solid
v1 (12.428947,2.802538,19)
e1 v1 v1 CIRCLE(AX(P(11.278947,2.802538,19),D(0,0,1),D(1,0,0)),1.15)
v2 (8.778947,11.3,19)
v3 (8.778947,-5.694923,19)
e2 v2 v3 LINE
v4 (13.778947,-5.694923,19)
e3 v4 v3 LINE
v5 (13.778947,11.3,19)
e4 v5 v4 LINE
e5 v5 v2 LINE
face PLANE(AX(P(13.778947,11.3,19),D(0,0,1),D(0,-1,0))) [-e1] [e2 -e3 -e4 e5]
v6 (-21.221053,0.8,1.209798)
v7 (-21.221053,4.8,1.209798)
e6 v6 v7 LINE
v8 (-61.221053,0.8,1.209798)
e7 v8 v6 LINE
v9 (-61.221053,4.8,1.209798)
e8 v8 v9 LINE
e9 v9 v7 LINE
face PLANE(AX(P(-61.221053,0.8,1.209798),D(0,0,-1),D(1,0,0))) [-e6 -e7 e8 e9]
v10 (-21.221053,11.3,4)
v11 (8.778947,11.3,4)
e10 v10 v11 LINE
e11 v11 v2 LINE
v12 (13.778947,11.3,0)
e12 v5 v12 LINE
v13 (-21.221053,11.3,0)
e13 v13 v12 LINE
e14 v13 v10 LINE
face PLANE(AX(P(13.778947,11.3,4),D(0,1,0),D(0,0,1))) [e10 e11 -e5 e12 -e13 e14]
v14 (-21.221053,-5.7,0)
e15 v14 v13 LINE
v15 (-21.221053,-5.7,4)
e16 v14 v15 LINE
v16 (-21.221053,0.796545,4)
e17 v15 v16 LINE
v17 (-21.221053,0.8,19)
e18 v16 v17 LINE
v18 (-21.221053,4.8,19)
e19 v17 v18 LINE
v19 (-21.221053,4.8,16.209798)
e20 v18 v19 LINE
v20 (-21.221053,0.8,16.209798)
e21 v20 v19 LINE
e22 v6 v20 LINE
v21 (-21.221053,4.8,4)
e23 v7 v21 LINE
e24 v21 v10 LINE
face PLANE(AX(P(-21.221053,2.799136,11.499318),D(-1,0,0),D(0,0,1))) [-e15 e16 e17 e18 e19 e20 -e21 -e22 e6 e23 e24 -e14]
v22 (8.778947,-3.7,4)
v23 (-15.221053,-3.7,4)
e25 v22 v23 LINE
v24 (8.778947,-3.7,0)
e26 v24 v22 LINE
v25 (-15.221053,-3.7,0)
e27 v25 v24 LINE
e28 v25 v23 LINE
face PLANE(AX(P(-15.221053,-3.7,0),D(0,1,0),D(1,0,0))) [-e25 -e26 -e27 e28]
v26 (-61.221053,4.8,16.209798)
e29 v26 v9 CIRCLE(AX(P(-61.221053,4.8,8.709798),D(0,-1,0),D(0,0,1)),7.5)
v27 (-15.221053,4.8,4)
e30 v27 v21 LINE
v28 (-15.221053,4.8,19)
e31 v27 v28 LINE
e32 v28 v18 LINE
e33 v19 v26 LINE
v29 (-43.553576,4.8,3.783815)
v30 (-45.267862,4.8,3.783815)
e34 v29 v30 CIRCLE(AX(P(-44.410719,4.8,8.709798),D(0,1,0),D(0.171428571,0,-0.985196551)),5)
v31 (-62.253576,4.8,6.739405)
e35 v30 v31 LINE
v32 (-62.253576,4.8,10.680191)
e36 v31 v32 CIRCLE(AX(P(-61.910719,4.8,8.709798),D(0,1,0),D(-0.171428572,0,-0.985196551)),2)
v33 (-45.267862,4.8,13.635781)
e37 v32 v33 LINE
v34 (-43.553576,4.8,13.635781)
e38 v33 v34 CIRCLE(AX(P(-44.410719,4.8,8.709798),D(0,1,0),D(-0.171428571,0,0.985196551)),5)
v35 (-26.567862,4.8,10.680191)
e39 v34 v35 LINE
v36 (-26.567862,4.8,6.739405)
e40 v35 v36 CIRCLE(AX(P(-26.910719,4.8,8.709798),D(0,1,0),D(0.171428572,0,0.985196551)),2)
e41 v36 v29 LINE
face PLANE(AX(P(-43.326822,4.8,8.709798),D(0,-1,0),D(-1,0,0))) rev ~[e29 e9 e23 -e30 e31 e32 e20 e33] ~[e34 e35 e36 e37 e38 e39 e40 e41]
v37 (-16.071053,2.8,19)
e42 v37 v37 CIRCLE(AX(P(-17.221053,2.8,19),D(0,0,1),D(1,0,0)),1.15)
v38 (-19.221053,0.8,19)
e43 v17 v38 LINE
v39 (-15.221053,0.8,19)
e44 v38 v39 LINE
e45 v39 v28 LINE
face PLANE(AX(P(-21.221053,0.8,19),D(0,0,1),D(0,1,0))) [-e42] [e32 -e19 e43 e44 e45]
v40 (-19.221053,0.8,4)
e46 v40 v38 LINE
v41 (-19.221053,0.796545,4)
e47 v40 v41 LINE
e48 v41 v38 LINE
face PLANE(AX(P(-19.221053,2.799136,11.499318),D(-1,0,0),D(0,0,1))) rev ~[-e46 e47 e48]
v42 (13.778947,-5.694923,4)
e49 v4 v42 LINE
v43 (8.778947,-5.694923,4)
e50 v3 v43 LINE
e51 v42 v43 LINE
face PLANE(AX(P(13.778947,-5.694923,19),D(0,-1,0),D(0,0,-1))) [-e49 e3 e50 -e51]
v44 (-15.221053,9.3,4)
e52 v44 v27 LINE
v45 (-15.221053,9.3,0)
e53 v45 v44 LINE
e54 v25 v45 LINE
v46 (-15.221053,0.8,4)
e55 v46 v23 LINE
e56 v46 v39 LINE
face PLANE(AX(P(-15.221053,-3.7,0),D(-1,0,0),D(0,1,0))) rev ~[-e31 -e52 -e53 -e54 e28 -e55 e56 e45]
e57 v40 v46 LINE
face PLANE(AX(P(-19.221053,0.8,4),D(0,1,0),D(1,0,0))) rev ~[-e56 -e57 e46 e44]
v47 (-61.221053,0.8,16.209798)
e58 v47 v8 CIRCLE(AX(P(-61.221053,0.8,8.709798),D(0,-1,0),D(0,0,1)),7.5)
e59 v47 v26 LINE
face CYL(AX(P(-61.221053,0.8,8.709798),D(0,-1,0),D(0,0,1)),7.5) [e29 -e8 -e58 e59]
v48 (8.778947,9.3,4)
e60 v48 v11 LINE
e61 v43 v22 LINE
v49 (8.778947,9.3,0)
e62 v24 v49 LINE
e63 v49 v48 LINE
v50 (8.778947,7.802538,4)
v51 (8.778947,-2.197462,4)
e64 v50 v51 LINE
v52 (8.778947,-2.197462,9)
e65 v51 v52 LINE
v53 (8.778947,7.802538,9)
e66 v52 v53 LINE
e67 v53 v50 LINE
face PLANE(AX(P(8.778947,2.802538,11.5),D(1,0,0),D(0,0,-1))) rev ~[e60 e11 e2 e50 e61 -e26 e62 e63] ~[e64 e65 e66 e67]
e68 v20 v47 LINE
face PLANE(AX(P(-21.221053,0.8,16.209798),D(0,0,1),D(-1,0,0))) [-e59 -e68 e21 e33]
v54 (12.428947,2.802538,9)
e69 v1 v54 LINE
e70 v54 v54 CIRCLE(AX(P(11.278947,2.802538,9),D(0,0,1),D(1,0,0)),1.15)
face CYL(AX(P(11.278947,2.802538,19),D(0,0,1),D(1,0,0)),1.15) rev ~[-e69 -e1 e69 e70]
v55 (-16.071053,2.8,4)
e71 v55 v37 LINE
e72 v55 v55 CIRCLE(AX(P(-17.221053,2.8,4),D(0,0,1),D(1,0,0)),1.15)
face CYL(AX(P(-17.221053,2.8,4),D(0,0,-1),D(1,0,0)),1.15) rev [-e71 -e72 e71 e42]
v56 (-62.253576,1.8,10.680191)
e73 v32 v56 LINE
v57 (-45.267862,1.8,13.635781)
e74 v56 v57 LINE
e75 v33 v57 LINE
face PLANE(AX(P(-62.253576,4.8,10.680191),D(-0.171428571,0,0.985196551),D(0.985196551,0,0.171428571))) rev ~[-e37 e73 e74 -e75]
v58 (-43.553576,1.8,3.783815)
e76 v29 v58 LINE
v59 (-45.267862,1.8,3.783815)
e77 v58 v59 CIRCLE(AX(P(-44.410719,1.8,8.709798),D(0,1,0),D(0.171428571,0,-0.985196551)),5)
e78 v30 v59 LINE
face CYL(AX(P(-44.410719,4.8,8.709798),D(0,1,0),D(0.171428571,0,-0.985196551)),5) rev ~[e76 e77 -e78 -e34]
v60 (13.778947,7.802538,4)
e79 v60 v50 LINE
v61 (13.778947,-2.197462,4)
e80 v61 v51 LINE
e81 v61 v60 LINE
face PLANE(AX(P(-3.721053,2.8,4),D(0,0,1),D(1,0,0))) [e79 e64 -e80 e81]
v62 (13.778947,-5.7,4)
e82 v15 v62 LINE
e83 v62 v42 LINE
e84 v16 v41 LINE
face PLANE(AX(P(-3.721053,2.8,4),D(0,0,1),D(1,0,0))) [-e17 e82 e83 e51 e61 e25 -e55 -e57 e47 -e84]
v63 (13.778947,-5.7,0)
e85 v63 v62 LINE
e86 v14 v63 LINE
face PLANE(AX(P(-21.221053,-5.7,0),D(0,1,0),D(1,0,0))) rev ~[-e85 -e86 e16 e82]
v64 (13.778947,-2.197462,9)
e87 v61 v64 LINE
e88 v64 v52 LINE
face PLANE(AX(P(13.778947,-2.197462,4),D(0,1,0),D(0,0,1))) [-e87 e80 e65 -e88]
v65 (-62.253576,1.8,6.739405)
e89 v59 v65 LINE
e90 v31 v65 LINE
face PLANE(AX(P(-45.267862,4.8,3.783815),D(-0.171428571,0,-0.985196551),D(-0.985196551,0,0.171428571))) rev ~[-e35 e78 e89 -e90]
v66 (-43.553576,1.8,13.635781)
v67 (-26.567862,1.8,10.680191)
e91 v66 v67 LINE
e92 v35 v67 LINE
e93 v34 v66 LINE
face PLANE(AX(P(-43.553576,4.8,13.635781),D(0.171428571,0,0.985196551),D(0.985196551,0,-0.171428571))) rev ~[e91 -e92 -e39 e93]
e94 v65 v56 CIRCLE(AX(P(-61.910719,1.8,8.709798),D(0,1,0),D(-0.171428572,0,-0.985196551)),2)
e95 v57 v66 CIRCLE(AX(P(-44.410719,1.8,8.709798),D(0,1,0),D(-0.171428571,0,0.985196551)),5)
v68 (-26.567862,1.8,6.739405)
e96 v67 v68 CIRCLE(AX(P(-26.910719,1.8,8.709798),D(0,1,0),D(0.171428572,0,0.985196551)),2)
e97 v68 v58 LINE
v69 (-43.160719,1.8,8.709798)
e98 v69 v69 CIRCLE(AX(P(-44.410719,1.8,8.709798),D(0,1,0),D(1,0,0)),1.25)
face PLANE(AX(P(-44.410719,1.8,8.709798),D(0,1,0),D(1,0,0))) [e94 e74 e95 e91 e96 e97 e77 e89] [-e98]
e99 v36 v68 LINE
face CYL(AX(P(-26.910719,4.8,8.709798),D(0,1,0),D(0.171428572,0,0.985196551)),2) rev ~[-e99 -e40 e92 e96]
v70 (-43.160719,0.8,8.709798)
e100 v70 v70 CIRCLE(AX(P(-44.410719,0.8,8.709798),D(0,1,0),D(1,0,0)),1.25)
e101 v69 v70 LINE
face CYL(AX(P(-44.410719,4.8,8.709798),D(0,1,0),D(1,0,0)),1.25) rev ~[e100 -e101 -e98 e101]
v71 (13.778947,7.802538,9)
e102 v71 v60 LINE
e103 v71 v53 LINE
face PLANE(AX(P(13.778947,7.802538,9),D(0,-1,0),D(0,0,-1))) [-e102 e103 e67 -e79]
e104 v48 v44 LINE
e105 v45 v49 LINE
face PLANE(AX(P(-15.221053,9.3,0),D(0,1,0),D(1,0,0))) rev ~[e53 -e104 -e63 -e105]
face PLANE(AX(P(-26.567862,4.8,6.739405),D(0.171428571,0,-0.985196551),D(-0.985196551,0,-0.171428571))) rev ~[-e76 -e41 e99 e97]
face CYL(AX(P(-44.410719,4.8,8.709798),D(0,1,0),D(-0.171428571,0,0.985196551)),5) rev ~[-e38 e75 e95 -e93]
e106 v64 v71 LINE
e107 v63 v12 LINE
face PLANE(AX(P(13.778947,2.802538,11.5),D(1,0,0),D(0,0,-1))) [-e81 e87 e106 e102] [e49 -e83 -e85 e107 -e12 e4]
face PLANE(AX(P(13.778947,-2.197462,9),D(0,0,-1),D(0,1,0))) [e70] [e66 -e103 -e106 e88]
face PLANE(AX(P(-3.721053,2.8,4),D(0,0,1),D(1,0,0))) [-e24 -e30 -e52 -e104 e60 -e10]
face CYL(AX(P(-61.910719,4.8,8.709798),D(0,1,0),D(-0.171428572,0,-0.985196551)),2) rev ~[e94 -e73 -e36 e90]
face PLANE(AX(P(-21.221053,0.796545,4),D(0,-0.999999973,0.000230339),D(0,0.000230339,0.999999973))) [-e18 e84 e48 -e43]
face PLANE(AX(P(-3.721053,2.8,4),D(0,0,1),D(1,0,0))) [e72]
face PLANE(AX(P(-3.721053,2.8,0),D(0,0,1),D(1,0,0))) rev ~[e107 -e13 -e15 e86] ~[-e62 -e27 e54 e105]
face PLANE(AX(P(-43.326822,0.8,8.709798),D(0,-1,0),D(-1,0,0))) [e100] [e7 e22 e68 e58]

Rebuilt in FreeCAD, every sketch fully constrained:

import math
import FreeCAD as App
import Part
import Sketcher

doc = App.newDocument("Part")
body = doc.addObject("PartDesign::Body", "Body")

sketch1 = doc.addObject("Sketcher::SketchObject", "Sketch")
body.addObject(sketch1)
sketch1.AttachmentSupport = (doc.XY_Plane, [""])
sketch1.MapMode = "FlatFace"
sketch1.addGeometry([
    Part.LineSegment(App.Vector(-21, 11, 0), App.Vector(-21, -6, 0)),
    Part.LineSegment(App.Vector(-21, -6, 0), App.Vector(14, -6, 0)),
    Part.LineSegment(App.Vector(14, -6, 0), App.Vector(14, 11, 0)),
    Part.LineSegment(App.Vector(14, 11, 0), App.Vector(-21, 11, 0)),
], False)
sketch1.addConstraint([
    Sketcher.Constraint("Coincident", 0, 2, 1, 1),
    Sketcher.Constraint("Coincident", 1, 2, 2, 1),
    Sketcher.Constraint("Coincident", 2, 2, 3, 1),
    Sketcher.Constraint("Coincident", 3, 2, 0, 1),
    Sketcher.Constraint("Vertical", 0),
    Sketcher.Constraint("Horizontal", 1),
    Sketcher.Constraint("Vertical", 2),
    Sketcher.Constraint("Horizontal", 3),
    Sketcher.Constraint("DistanceX", 1, 1, 1, 2, 35.0),
    Sketcher.Constraint("DistanceY", 0, 2, 0, 1, 17.0),
    Sketcher.Constraint("DistanceY", 0, 2, -1, 1, 5.7),
    Sketcher.Constraint("DistanceX", 0, 2, -1, 1, 21.221053),
])
pad1 = doc.addObject("PartDesign::Pad", "Pad")
body.addObject(pad1)
pad1.Profile = sketch1
pad1.Length = 4

sketch2 = doc.addObject("Sketcher::SketchObject", "Sketch001")
body.addObject(sketch2)
sketch2.AttachmentSupport = (doc.XY_Plane, [""])
sketch2.MapMode = "FlatFace"
sketch2.addGeometry([
    Part.LineSegment(App.Vector(-15, 9, 0), App.Vector(-15, -4, 0)),
    Part.LineSegment(App.Vector(-15, -4, 0), App.Vector(9, -4, 0)),
    Part.LineSegment(App.Vector(9, -4, 0), App.Vector(9, 9, 0)),
    Part.LineSegment(App.Vector(9, 9, 0), App.Vector(-15, 9, 0)),
], False)
sketch2.addConstraint([
    Sketcher.Constraint("Coincident", 0, 2, 1, 1),
    Sketcher.Constraint("Coincident", 1, 2, 2, 1),
    Sketcher.Constraint("Coincident", 2, 2, 3, 1),
    Sketcher.Constraint("Coincident", 3, 2, 0, 1),
    Sketcher.Constraint("Vertical", 0),
    Sketcher.Constraint("Horizontal", 1),
    Sketcher.Constraint("Vertical", 2),
    Sketcher.Constraint("Horizontal", 3),
    Sketcher.Constraint("DistanceX", 1, 1, 1, 2, 24.0),
    Sketcher.Constraint("DistanceY", 0, 2, 0, 1, 13.0),
    Sketcher.Constraint("DistanceY", 0, 2, -1, 1, 3.7),
    Sketcher.Constraint("DistanceX", 0, 2, -1, 1, 15.221053),
])
pocket1 = doc.addObject("PartDesign::Pocket", "Pocket")
body.addObject(pocket1)
pocket1.Profile = sketch2
pocket1.Length = 6
pocket1.Reversed = True

sketch3 = doc.addObject("Sketcher::SketchObject", "Sketch002")
body.addObject(sketch3)
sketch3.AttachmentSupport = (doc.YZ_Plane, [""])
sketch3.MapMode = "FlatFace"
sketch3.AttachmentOffset = App.Placement(App.Vector(0, 0, 13.778947), App.Rotation())
sketch3.addGeometry([
    Part.LineSegment(App.Vector(7.8, 4, 0), App.Vector(11.3, 4, 0)),
    Part.LineSegment(App.Vector(11.3, 4, 0), App.Vector(11.3, 19, 0)),
    Part.LineSegment(App.Vector(11.3, 19, 0), App.Vector(-5.7, 19, 0)),
    Part.LineSegment(App.Vector(-5.7, 19, 0), App.Vector(-5.7, 4, 0)),
    Part.LineSegment(App.Vector(-5.7, 4, 0), App.Vector(-2.2, 4, 0)),
    Part.LineSegment(App.Vector(-2.2, 4, 0), App.Vector(-2.2, 9, 0)),
    Part.LineSegment(App.Vector(-2.2, 9, 0), App.Vector(7.8, 9, 0)),
    Part.LineSegment(App.Vector(7.8, 9, 0), App.Vector(7.8, 4, 0)),
], False)
sketch3.addConstraint([
    Sketcher.Constraint("Coincident", 0, 2, 1, 1),
    Sketcher.Constraint("Coincident", 1, 2, 2, 1),
    Sketcher.Constraint("Coincident", 2, 2, 3, 1),
    Sketcher.Constraint("Coincident", 3, 2, 4, 1),
    Sketcher.Constraint("Coincident", 4, 2, 5, 1),
    Sketcher.Constraint("Coincident", 5, 2, 6, 1),
    Sketcher.Constraint("Coincident", 6, 2, 7, 1),
    Sketcher.Constraint("Coincident", 7, 2, 0, 1),
    Sketcher.Constraint("Horizontal", 0),
    Sketcher.Constraint("Vertical", 1),
    Sketcher.Constraint("Horizontal", 2),
    Sketcher.Constraint("Vertical", 3),
    Sketcher.Constraint("Horizontal", 4),
    Sketcher.Constraint("Vertical", 5),
    Sketcher.Constraint("Horizontal", 6),
    Sketcher.Constraint("Vertical", 7),
    Sketcher.Constraint("Horizontal", 0, 2, 3, 2),
    Sketcher.Constraint("Equal", 0, 4),
    Sketcher.Constraint("DistanceX", 6, 1, 6, 2, 10.0),
    Sketcher.Constraint("DistanceY", 1, 1, 1, 2, 15.0),
    Sketcher.Constraint("DistanceY", 5, 1, 5, 2, 5.0),
    Sketcher.Constraint("DistanceY", -1, 1, 0, 2, 4.0),
    Sketcher.Constraint("DistanceX", -1, 1, 0, 2, 11.3),
    Sketcher.Constraint("DistanceX", 0, 1, 0, 2, 3.497462),
])
pad2 = doc.addObject("PartDesign::Pad", "Pad001")
body.addObject(pad2)
pad2.Profile = sketch3
pad2.Length = 5
pad2.Reversed = True

sketch4 = doc.addObject("Sketcher::SketchObject", "Sketch003")
body.addObject(sketch4)
sketch4.AttachmentSupport = (doc.XY_Plane, [""])
sketch4.MapMode = "FlatFace"
sketch4.AttachmentOffset = App.Placement(App.Vector(0, 0, 4), App.Rotation())
sketch4.addGeometry([
    Part.LineSegment(App.Vector(-19.2, 4.8, 0), App.Vector(-19.2, 0.8, 0)),
    Part.LineSegment(App.Vector(-19.2, 0.8, 0), App.Vector(-15.2, 0.8, 0)),
    Part.LineSegment(App.Vector(-15.2, 0.8, 0), App.Vector(-15.2, 4.8, 0)),
    Part.LineSegment(App.Vector(-15.2, 4.8, 0), App.Vector(-19.2, 4.8, 0)),
    Part.Circle(App.Vector(-17.2, 2.8, 0), App.Vector(0, 0, 1), 1.1),
], False)
sketch4.addConstraint([
    Sketcher.Constraint("Coincident", 0, 2, 1, 1),
    Sketcher.Constraint("Coincident", 1, 2, 2, 1),
    Sketcher.Constraint("Coincident", 2, 2, 3, 1),
    Sketcher.Constraint("Coincident", 3, 2, 0, 1),
    Sketcher.Constraint("Vertical", 0),
    Sketcher.Constraint("Horizontal", 1),
    Sketcher.Constraint("Vertical", 2),
    Sketcher.Constraint("Horizontal", 3),
    Sketcher.Constraint("Equal", 3, 0),
    Sketcher.Constraint("Diameter", 4, 2.3),
    Sketcher.Constraint("DistanceX", 1, 1, 1, 2, 4.0),
    Sketcher.Constraint("DistanceX", 0, 2, 4, 3, 2.0),
    Sketcher.Constraint("DistanceY", 0, 2, 4, 3, 2.0),
    Sketcher.Constraint("DistanceY", -1, 1, 4, 3, 2.8),
    Sketcher.Constraint("DistanceX", 4, 3, -1, 1, 17.221053),
])
pad3 = doc.addObject("PartDesign::Pad", "Pad002")
body.addObject(pad3)
pad3.Profile = sketch4
pad3.Length = 15

sketch5 = doc.addObject("Sketcher::SketchObject", "Sketch004")
body.addObject(sketch5)
sketch5.AttachmentSupport = (doc.XY_Plane, [""])
sketch5.MapMode = "FlatFace"
sketch5.AttachmentOffset = App.Placement(App.Vector(0, 0, 19), App.Rotation())
sketch5.addGeometry(Part.Circle(App.Vector(11.3, 2.8, 0), App.Vector(0, 0, 1), 1.1), False)
sketch5.addConstraint([
    Sketcher.Constraint("Diameter", 0, 2.3),
    Sketcher.Constraint("DistanceY", -1, 1, 0, 3, 2.802538),
    Sketcher.Constraint("DistanceX", -1, 1, 0, 3, 11.278947),
])
pocket2 = doc.addObject("PartDesign::Pocket", "Pocket001")
body.addObject(pocket2)
pocket2.Profile = sketch5
pocket2.Length = 15

sketch6 = doc.addObject("Sketcher::SketchObject", "Sketch005")
body.addObject(sketch6)
sketch6.AttachmentSupport = (doc.YZ_Plane, [""])
sketch6.MapMode = "FlatFace"
sketch6.AttachmentOffset = App.Placement(App.Vector(0, 0, -21.221053), App.Rotation())
sketch6.addGeometry([
    Part.LineSegment(App.Vector(4.8, 4, 0), App.Vector(0.8, 4, 0)),
    Part.LineSegment(App.Vector(0.8, 4, 0), App.Vector(0.8, 19, 0)),
    Part.LineSegment(App.Vector(0.8, 19, 0), App.Vector(4.8, 19, 0)),
    Part.LineSegment(App.Vector(4.8, 19, 0), App.Vector(4.8, 4, 0)),
], False)
sketch6.addConstraint([
    Sketcher.Constraint("Coincident", 0, 2, 1, 1),
    Sketcher.Constraint("Coincident", 1, 2, 2, 1),
    Sketcher.Constraint("Coincident", 2, 2, 3, 1),
    Sketcher.Constraint("Coincident", 3, 2, 0, 1),
    Sketcher.Constraint("Horizontal", 0),
    Sketcher.Constraint("Horizontal", 2),
    Sketcher.Constraint("Vertical", 3),
    Sketcher.Constraint("DistanceX", 2, 1, 2, 2, 4.0),
    Sketcher.Constraint("DistanceY", 3, 2, 3, 1, 15.0),
    Sketcher.Constraint("DistanceY", -1, 1, 0, 2, 4.0),
    Sketcher.Constraint("DistanceX", -1, 1, 1, 2, 0.8),
    Sketcher.Constraint("DistanceX", 0, 2, 0, 1, 4.003455),
])
pad4 = doc.addObject("PartDesign::Pad", "Pad003")
body.addObject(pad4)
pad4.Profile = sketch6
pad4.Length = 2

sketch7 = doc.addObject("Sketcher::SketchObject", "Sketch006")
body.addObject(sketch7)
sketch7.AttachmentSupport = (doc.XZ_Plane, [""])
sketch7.MapMode = "FlatFace"
sketch7.AttachmentOffset = App.Placement(App.Vector(0, 0, -0.8), App.Rotation())
sketch7.addGeometry([
    Part.LineSegment(App.Vector(-21, 1, 0), App.Vector(-21, 16, 0)),
    Part.LineSegment(App.Vector(-21, 16, 0), App.Vector(-61, 16, 0)),
    Part.ArcOfCircle(Part.Circle(App.Vector(-61, 9, 0), App.Vector(0, 0, 1), 8), math.radians(90), math.radians(270)),
    Part.LineSegment(App.Vector(-61, 1, 0), App.Vector(-21, 1, 0)),
], False)
sketch7.addConstraint([
    Sketcher.Constraint("Coincident", 0, 2, 1, 1),
    Sketcher.Constraint("Tangent", 1, 2, 2, 1),
    Sketcher.Constraint("Tangent", 2, 2, 3, 1),
    Sketcher.Constraint("Coincident", 3, 2, 0, 1),
    Sketcher.Constraint("Vertical", 0),
    Sketcher.Constraint("Horizontal", 1),
    Sketcher.Constraint("Horizontal", 3),
    Sketcher.Constraint("Radius", 2, 7.5),
    Sketcher.Constraint("DistanceX", 1, 2, 1, 1, 40.0),
    Sketcher.Constraint("DistanceX", 2, 3, -1, 1, 61.221053),
    Sketcher.Constraint("DistanceY", -1, 1, 2, 3, 8.709798),
])
pad5 = doc.addObject("PartDesign::Pad", "Pad004")
body.addObject(pad5)
pad5.Profile = sketch7
pad5.Length = 4
pad5.Reversed = True

sketch8 = doc.addObject("Sketcher::SketchObject", "Sketch007")
body.addObject(sketch8)
sketch8.AttachmentSupport = (doc.XZ_Plane, [""])
sketch8.MapMode = "FlatFace"
sketch8.AttachmentOffset = App.Placement(App.Vector(0, 0, -4.8), App.Rotation())
sketch8.addGeometry([
    Part.LineSegment(App.Vector(-45.3, 3.8, 0), App.Vector(-62.3, 6.7, 0)),
    Part.ArcOfCircle(Part.Circle(App.Vector(-61.9, 8.7, 0), App.Vector(0, 0, 1), 2), math.radians(100), math.radians(260)),
    Part.LineSegment(App.Vector(-62.3, 10.7, 0), App.Vector(-45.3, 13.6, 0)),
    Part.ArcOfCircle(Part.Circle(App.Vector(-44.4, 8.7, 0), App.Vector(0, 0, 1), 5), math.radians(80.13), math.radians(99.87)),
    Part.LineSegment(App.Vector(-43.6, 13.6, 0), App.Vector(-26.6, 10.7, 0)),
    Part.ArcOfCircle(Part.Circle(App.Vector(-26.9, 8.7, 0), App.Vector(0, 0, 1), 2), math.radians(-80), math.radians(80)),
    Part.LineSegment(App.Vector(-26.6, 6.7, 0), App.Vector(-43.6, 3.8, 0)),
    Part.ArcOfCircle(Part.Circle(App.Vector(-44.4, 8.7, 0), App.Vector(0, 0, 1), 5), math.radians(-99.87), math.radians(-80.13)),
], False)
sketch8.addConstraint([
    Sketcher.Constraint("Tangent", 0, 2, 1, 2),
    Sketcher.Constraint("Tangent", 1, 1, 2, 1),
    Sketcher.Constraint("Tangent", 2, 2, 3, 2),
    Sketcher.Constraint("Tangent", 3, 1, 4, 1),
    Sketcher.Constraint("Tangent", 4, 2, 5, 2),
    Sketcher.Constraint("Tangent", 5, 1, 6, 1),
    Sketcher.Constraint("Tangent", 6, 2, 7, 2),
    Sketcher.Constraint("Tangent", 7, 1, 0, 1),
    Sketcher.Constraint("Coincident", 7, 3, 3, 3),
    Sketcher.Constraint("Equal", 1, 5),
    Sketcher.Constraint("Equal", 3, 7),
    Sketcher.Constraint("Parallel", 0, 4),
    Sketcher.Constraint("Parallel", 2, 6),
    Sketcher.Constraint("Horizontal", 1, 3, 3, 3),
    Sketcher.Constraint("Radius", 1, 2.0),
    Sketcher.Constraint("Radius", 3, 5.0),
    Sketcher.Constraint("DistanceX", 1, 3, 5, 3, 35.0),
    Sketcher.Constraint("DistanceX", 1, 3, -1, 1, 61.910719),
    Sketcher.Constraint("DistanceY", -1, 1, 1, 1, 10.680191),
])
pocket3 = doc.addObject("PartDesign::Pocket", "Pocket002")
body.addObject(pocket3)
pocket3.Profile = sketch8
pocket3.Length = 3
pocket3.Reversed = True

sketch9 = doc.addObject("Sketcher::SketchObject", "Sketch008")
body.addObject(sketch9)
sketch9.AttachmentSupport = (doc.XZ_Plane, [""])
sketch9.MapMode = "FlatFace"
sketch9.AttachmentOffset = App.Placement(App.Vector(0, 0, -4.8), App.Rotation())
sketch9.addGeometry(Part.Circle(App.Vector(-44.4, 8.7, 0), App.Vector(0, 0, 1), 1.2), False)
sketch9.addConstraint([
    Sketcher.Constraint("Diameter", 0, 2.5),
    Sketcher.Constraint("DistanceX", 0, 3, -1, 1, 44.410719),
    Sketcher.Constraint("DistanceY", -1, 1, 0, 3, 8.709798),
])
pocket4 = doc.addObject("PartDesign::Pocket", "Pocket003")
body.addObject(pocket4)
pocket4.Profile = sketch9
pocket4.Length = 13.4
pocket4.Reversed = True

doc.recompute()
